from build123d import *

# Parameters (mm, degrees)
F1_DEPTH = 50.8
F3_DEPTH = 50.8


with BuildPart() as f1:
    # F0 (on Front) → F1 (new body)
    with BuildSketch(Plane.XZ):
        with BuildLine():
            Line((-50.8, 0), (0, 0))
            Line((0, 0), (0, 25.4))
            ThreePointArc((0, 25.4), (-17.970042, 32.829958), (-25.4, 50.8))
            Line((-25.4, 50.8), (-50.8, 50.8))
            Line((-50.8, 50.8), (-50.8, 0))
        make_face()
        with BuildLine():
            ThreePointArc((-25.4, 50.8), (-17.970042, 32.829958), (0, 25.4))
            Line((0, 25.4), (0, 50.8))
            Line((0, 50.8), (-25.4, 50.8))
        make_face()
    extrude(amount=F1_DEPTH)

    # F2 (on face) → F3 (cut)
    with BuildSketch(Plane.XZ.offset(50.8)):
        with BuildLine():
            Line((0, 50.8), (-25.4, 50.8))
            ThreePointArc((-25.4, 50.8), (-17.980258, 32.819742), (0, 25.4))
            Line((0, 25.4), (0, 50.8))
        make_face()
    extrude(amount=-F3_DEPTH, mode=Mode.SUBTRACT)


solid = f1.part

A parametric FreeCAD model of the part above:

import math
import FreeCAD as App
import Part
import Sketcher
Q = App.Units.Quantity


def add_polygon(sketch, points):
    """Adds a closed chain of lines whose ends are joined by coincident constraints."""
    first, n = sketch.GeometryCount, len(points)
    for a, b in zip(points, points[1:] + points[:1]):
        sketch.addGeometry(Part.LineSegment(App.Vector(*a, 0), App.Vector(*b, 0)), False)
    for i in range(n):
        sketch.addConstraint(Sketcher.Constraint("Coincident", first + i, 2, first + (i + 1) % n, 1))

doc = App.newDocument("Part")
body = doc.addObject("PartDesign::Body", "Body")

# Sketch on XZ plane
sketch1 = doc.addObject("Sketcher::SketchObject", "Sketch")
body.addObject(sketch1)
sketch1.AttachmentSupport = (doc.XZ_Plane, [""])
sketch1.MapMode = "FlatFace"
add_polygon(sketch1, [(-51, 0), (0, 0), (0, 51), (-51, 51)])  # lines 0-3
sketch1.addConstraint([
    Sketcher.Constraint("Horizontal", 0),
    Sketcher.Constraint("Vertical", 1),
    Sketcher.Constraint("Horizontal", 2),
    Sketcher.Constraint("Vertical", 3),
    Sketcher.Constraint("Coincident", 0, 2, -1, 1),
    Sketcher.Constraint("Equal", 2, 1),
    Sketcher.Constraint("DistanceX", 0, 1, 0, 2, Q("2 in")),
])
pad1 = doc.addObject("PartDesign::Pad", "Pad")
body.addObject(pad1)
pad1.Profile = sketch1
pad1.Length = Q("2 in")

# Sketch on XZ plane
sketch2 = doc.addObject("Sketcher::SketchObject", "Sketch001")
body.addObject(sketch2)
sketch2.AttachmentSupport = (doc.XZ_Plane, [""])
sketch2.MapMode = "FlatFace"
sketch2.AttachmentOffset = App.Placement(App.Vector(0, 0, 2 * 25.4), App.Rotation())
sketch2.addGeometry([
    Part.LineSegment(App.Vector(0, 51, 0), App.Vector(-25, 51, 0)),
    Part.ArcOfCircle(Part.Circle(App.Vector(0, 51, 0), App.Vector(0, 0, 1), 25), math.radians(180), math.radians(270)),
    Part.LineSegment(App.Vector(0, 25, 0), App.Vector(0, 51, 0)),
], False)
sketch2.addConstraint([
    Sketcher.Constraint("Coincident", 0, 2, 1, 1),
    Sketcher.Constraint("Coincident", 1, 2, 2, 1),
    Sketcher.Constraint("Coincident", 2, 2, 0, 1),
    Sketcher.Constraint("Horizontal", 0),
    Sketcher.Constraint("Vertical", 2),
    Sketcher.Constraint("PointOnObject", 1, 2, -2),
    Sketcher.Constraint("Equal", 0, 2),
    Sketcher.Constraint("DistanceX", 0, 2, 0, 1, Q("1 in")),
    Sketcher.Constraint("DistanceY", -1, 1, 0, 2, Q("2 in")),
    Sketcher.Constraint("Radius", 1, 25.332888),
])
pocket1 = doc.addObject("PartDesign::Pocket", "Pocket")
body.addObject(pocket1)
pocket1.Profile = sketch2
pocket1.Length = Q("2 in")

doc.recompute()
